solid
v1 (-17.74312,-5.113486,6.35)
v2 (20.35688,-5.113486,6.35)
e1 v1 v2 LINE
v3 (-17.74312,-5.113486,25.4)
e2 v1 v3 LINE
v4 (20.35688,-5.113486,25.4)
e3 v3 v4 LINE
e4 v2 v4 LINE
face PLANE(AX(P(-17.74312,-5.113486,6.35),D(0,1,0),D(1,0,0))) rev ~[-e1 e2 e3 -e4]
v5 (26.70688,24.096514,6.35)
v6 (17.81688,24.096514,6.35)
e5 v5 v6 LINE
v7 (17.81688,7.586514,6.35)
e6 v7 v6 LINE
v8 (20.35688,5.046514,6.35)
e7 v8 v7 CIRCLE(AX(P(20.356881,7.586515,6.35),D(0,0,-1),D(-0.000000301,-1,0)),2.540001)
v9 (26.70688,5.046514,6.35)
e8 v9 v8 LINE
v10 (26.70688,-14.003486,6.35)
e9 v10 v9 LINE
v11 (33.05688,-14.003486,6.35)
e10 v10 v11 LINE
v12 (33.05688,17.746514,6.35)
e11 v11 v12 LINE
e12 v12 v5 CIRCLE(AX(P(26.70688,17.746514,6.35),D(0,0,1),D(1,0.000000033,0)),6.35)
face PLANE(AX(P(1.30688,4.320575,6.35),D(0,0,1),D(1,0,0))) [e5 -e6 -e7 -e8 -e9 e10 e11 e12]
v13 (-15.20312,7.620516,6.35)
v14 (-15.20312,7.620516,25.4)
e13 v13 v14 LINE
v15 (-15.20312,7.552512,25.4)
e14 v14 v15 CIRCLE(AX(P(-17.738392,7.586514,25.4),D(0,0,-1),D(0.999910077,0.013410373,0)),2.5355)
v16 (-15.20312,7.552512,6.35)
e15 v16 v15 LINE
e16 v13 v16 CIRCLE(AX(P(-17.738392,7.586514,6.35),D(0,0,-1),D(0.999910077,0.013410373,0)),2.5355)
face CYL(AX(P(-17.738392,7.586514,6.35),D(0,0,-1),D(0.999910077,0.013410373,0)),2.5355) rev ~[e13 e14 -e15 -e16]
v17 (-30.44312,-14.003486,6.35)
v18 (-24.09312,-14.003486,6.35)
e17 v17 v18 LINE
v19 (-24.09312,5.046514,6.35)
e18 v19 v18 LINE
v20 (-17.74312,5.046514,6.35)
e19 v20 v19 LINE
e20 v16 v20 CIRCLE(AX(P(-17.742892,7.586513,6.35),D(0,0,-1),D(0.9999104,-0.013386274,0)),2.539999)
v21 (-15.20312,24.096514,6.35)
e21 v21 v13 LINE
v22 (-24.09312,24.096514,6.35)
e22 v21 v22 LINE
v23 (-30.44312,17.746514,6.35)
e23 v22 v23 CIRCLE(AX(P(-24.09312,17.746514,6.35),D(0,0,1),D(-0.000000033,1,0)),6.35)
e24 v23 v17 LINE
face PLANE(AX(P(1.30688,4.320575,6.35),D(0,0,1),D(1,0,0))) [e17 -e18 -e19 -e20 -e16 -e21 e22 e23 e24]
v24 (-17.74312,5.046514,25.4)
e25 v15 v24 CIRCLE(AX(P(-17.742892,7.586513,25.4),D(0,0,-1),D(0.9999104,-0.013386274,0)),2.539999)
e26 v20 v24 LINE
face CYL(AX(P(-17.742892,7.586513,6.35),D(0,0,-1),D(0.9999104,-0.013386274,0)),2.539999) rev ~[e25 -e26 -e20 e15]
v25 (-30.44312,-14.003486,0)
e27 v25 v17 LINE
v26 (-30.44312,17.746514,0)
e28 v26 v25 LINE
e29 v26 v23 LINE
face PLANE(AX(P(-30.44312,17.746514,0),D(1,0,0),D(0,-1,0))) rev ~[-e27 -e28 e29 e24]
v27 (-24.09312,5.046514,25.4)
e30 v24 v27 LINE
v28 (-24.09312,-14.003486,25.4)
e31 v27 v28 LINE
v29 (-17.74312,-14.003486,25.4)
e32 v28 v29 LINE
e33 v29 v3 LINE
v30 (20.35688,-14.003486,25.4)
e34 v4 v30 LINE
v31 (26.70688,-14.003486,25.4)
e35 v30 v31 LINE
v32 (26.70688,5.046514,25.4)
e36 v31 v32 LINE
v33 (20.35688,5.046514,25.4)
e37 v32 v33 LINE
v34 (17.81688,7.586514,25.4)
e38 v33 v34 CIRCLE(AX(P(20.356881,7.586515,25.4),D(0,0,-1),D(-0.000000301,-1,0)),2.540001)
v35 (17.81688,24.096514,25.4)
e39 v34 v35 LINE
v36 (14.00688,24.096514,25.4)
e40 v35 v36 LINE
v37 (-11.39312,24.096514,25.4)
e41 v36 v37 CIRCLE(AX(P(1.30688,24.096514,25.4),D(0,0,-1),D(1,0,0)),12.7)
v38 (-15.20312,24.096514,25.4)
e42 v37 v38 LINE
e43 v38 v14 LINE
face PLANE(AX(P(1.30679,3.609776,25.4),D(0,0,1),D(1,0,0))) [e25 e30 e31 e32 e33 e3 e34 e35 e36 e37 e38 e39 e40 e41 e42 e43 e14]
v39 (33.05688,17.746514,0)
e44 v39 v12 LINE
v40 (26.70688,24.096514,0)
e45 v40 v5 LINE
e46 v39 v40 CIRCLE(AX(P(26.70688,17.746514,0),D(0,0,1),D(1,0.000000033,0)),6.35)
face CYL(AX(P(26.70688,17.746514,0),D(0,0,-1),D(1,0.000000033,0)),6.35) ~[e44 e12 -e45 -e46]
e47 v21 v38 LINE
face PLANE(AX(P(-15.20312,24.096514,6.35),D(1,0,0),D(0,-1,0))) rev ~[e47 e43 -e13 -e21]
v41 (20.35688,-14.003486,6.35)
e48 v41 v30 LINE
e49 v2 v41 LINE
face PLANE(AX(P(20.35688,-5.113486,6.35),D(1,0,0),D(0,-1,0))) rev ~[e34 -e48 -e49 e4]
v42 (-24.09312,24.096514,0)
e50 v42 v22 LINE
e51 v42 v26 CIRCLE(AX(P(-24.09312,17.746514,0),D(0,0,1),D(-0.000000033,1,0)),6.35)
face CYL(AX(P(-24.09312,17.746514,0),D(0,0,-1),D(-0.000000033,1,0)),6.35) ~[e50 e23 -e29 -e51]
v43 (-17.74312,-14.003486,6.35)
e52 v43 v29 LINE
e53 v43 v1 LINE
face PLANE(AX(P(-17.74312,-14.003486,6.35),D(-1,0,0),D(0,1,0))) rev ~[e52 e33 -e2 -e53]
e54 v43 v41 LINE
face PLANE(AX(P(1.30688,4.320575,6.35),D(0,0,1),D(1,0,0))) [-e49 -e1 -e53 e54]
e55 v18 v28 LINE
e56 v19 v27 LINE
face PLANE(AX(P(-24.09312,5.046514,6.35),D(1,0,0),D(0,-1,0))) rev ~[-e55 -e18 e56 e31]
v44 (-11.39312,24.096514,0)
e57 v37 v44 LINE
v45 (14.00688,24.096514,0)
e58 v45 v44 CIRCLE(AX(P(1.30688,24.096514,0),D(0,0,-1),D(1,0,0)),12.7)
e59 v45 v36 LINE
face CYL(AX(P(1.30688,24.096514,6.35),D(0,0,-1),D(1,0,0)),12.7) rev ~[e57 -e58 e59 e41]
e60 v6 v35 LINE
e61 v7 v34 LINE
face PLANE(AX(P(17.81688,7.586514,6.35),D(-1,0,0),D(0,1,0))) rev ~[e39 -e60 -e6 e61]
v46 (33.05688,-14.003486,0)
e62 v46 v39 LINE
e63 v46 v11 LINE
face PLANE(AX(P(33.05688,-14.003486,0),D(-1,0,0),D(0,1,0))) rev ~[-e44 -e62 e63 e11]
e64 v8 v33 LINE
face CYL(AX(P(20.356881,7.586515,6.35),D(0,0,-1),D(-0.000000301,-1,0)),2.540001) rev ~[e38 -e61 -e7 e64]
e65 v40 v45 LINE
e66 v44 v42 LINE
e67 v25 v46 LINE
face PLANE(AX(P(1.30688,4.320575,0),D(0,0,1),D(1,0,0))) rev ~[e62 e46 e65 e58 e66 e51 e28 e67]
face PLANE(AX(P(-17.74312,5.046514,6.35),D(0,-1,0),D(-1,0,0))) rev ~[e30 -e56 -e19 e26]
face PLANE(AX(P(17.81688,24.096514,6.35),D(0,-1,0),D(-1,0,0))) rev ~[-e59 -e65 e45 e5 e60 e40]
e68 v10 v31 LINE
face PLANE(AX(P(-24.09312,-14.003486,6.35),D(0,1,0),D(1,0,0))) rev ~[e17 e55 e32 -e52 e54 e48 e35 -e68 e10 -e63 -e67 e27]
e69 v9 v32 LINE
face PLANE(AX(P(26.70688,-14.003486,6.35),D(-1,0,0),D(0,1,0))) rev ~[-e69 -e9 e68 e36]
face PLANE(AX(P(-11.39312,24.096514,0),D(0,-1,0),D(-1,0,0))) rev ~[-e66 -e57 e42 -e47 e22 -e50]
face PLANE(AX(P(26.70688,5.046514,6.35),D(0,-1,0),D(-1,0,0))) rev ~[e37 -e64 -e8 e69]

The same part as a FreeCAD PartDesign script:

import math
import FreeCAD as App
import Part
import Sketcher

V = App.Vector
Q = App.Units.Quantity

doc = App.newDocument("Part")
params = doc.addObject("Spreadsheet::Sheet", "Params")
for row, (alias, value) in enumerate([
    ("sketch1_radius", "0.5 in"),
    ("sketch1_radius2", "0.25 in"),
    ("sketch1_width", "0.5 in"),
    ("sketch1_height", "1.25 in"),
    ("pad1_length", "0.25 in"),
    ("sketch2_radius", "0.1 in"),
    ("sketch2_radius2", "0.5 in"),
    ("sketch2_width", "1.5 in"),
    ("sketch2_height", "0.75 in"),
    ("sketch2_height2", "0.35 in"),
    ("pad2_length", "0.75 in"),
], start=1):
    params.set(f"A{row}", alias)
    params.set(f"B{row}", "=" + value)
    params.setAlias(f"B{row}", alias)

body = doc.addObject("PartDesign::Body", "Body")

# Sketch on XY plane
sketch1 = body.newObject("Sketcher::SketchObject", "Sketch")
sketch1.AttachmentSupport = (doc.getObject("XY_Plane"), [""])
sketch1.MapMode = "FlatFace"
sketch1.addGeometry(Part.LineSegment(V(-11, 24, 0), V(-24, 24, 0)), False)
sketch1.addGeometry(Part.ArcOfCircle(Part.Circle(V(-24, 18, 0), V(0, 0, 1), 6), math.radians(90), math.radians(180)), False)
sketch1.addGeometry(Part.LineSegment(V(-30, 18, 0), V(-30, -14, 0)), False)
sketch1.addGeometry(Part.LineSegment(V(-30, -14, 0), V(33, -14, 0)), False)
sketch1.addGeometry(Part.LineSegment(V(33, -14, 0), V(33, 18, 0)), False)
sketch1.addGeometry(Part.ArcOfCircle(Part.Circle(V(27, 18, 0), V(0, 0, 1), 6), math.radians(0), math.radians(90)), False)
sketch1.addGeometry(Part.LineSegment(V(27, 24, 0), V(14, 24, 0)), False)
sketch1.addGeometry(Part.ArcOfCircle(Part.Circle(V(1, 24, 0), V(0, 0, 1), 13), math.radians(180), math.radians(360)), False)
sketch1.addConstraint(Sketcher.Constraint("Tangent", 0, 2, 1, 1))
sketch1.addConstraint(Sketcher.Constraint("Tangent", 1, 2, 2, 1))
sketch1.addConstraint(Sketcher.Constraint("Coincident", 2, 2, 3, 1))
sketch1.addConstraint(Sketcher.Constraint("Coincident", 3, 2, 4, 1))
sketch1.addConstraint(Sketcher.Constraint("Tangent", 4, 2, 5, 1))
sketch1.addConstraint(Sketcher.Constraint("Tangent", 5, 2, 6, 1))
sketch1.addConstraint(Sketcher.Constraint("Coincident", 6, 2, 7, 2))
sketch1.addConstraint(Sketcher.Constraint("Coincident", 7, 1, 0, 1))
sketch1.addConstraint(Sketcher.Constraint("Horizontal", 0))
sketch1.addConstraint(Sketcher.Constraint("Vertical", 2))
sketch1.addConstraint(Sketcher.Constraint("Horizontal", 3))
sketch1.addConstraint(Sketcher.Constraint("Vertical", 4))
sketch1.addConstraint(Sketcher.Constraint("Horizontal", 6))
sketch1.addConstraint(Sketcher.Constraint("Equal", 1, 5))
sketch1.addConstraint(Sketcher.Constraint("Horizontal", 1, 3, 5, 3))
sketch1.addConstraint(Sketcher.Constraint("Horizontal", 7, 3, 0, 2))
sketch1.addConstraint(Sketcher.Constraint("Equal", 0, 6))
sketch1.addConstraint(Sketcher.Constraint("Radius", 7, Q("0.5 in")))
sketch1.addConstraint(Sketcher.Constraint("Radius", 1, Q("0.25 in")))
sketch1.addConstraint(Sketcher.Constraint("DistanceX", 0, 2, 0, 1, Q("0.5 in")))
sketch1.addConstraint(Sketcher.Constraint("DistanceY", 2, 2, 2, 1, Q("1.25 in")))
sketch1.addConstraint(Sketcher.Constraint("DistanceX", 1, 3, -1, 1, Q("24.09312 mm")))
sketch1.addConstraint(Sketcher.Constraint("DistanceY", -1, 1, 1, 3, Q("17.746514 mm")))
sketch1.setExpression("Constraints[17]", "Params.sketch1_radius")
sketch1.setExpression("Constraints[18]", "Params.sketch1_radius2")
sketch1.setExpression("Constraints[19]", "Params.sketch1_width")
sketch1.setExpression("Constraints[20]", "Params.sketch1_height")
pad1 = body.newObject("PartDesign::Pad", "Pad")
pad1.Profile = sketch1
pad1.setExpression("Length", "Params.pad1_length")

# Sketch on XY plane
sketch2 = body.newObject("Sketcher::SketchObject", "Sketch001")
sketch2.AttachmentSupport = (doc.getObject("XY_Plane"), [""])
sketch2.MapMode = "FlatFace"
sketch2.AttachmentOffset = App.Placement(V(0, 0, 0.25 * 25.4), App.Rotation())
sketch2.addGeometry(Part.LineSegment(V(-24.09, 5.05, 0), V(-24.09, -14, 0)), False)
sketch2.addGeometry(Part.LineSegment(V(-24.09, -14, 0), V(-17.74, -14, 0)), False)
sketch2.addGeometry(Part.LineSegment(V(-17.74, -14, 0), V(-17.74, -5.11, 0)), False)
sketch2.addGeometry(Part.LineSegment(V(-17.74, -5.11, 0), V(20.36, -5.11, 0)), False)
sketch2.addGeometry(Part.LineSegment(V(20.36, -5.11, 0), V(20.36, -14, 0)), False)
sketch2.addGeometry(Part.LineSegment(V(20.36, -14, 0), V(26.71, -14, 0)), False)
sketch2.addGeometry(Part.LineSegment(V(26.71, -14, 0), V(26.71, 5.05, 0)), False)
sketch2.addGeometry(Part.LineSegment(V(26.71, 5.05, 0), V(20.36, 5.05, 0)), False)
sketch2.addGeometry(Part.ArcOfCircle(Part.Circle(V(20.36, 7.59, 0), V(0, 0, 1), 2.54), math.radians(-180), math.radians(-90)), False)
sketch2.addGeometry(Part.LineSegment(V(17.82, 7.59, 0), V(17.82, 24.1, 0)), False)
sketch2.addGeometry(Part.LineSegment(V(17.82, 24.1, 0), V(14.01, 24.1, 0)), False)
sketch2.addGeometry(Part.ArcOfCircle(Part.Circle(V(1.31, 24.1, 0), V(0, 0, 1), 12.7), math.radians(180), math.radians(360)), False)
sketch2.addGeometry(Part.LineSegment(V(-11.39, 24.1, 0), V(-15.2, 24.1, 0)), False)
sketch2.addGeometry(Part.LineSegment(V(-15.2, 24.1, 0), V(-15.2, 7.62, 0)), False)
sketch2.addGeometry(Part.ArcOfCircle(Part.Circle(V(-17.74, 7.59, 0), V(0, 0, 1), 2.54), math.radians(-0.77), math.radians(0.77)), False)
sketch2.addGeometry(Part.ArcOfCircle(Part.Circle(V(-17.74, 7.59, 0), V(0, 0, 1), 2.54), math.radians(-90), math.radians(-1)), False)
sketch2.addGeometry(Part.LineSegment(V(-17.74, 5.05, 0), V(-24.09, 5.05, 0)), False)
sketch2.addConstraint(Sketcher.Constraint("Coincident", 0, 2, 1, 1))
sketch2.addConstraint(Sketcher.Constraint("Coincident", 1, 2, 2, 1))
sketch2.addConstraint(Sketcher.Constraint("Coincident", 2, 2, 3, 1))
sketch2.addConstraint(Sketcher.Constraint("Coincident", 3, 2, 4, 1))
sketch2.addConstraint(Sketcher.Constraint("Coincident", 4, 2, 5, 1))
sketch2.addConstraint(Sketcher.Constraint("Coincident", 5, 2, 6, 1))
sketch2.addConstraint(Sketcher.Constraint("Coincident", 6, 2, 7, 1))
sketch2.addConstraint(Sketcher.Constraint("Tangent", 7, 2, 8, 2))
sketch2.addConstraint(Sketcher.Constraint("Tangent", 8, 1, 9, 1))
sketch2.addConstraint(Sketcher.Constraint("Coincident", 9, 2, 10, 1))
sketch2.addConstraint(Sketcher.Constraint("Coincident", 10, 2, 11, 2))
sketch2.addConstraint(Sketcher.Constraint("Coincident", 11, 1, 12, 1))
sketch2.addConstraint(Sketcher.Constraint("Coincident", 12, 2, 13, 1))
sketch2.addConstraint(Sketcher.Constraint("Coincident", 13, 2, 14, 2))
sketch2.addConstraint(Sketcher.Constraint("Coincident", 14, 1, 15, 2))
sketch2.addConstraint(Sketcher.Constraint("Coincident", 15, 1, 16, 1))
sketch2.addConstraint(Sketcher.Constraint("Coincident", 16, 2, 0, 1))
sketch2.addConstraint(Sketcher.Constraint("Vertical", 0))
sketch2.addConstraint(Sketcher.Constraint("Horizontal", 1))
sketch2.addConstraint(Sketcher.Constraint("Vertical", 2))
sketch2.addConstraint(Sketcher.Constraint("Horizontal", 3))
sketch2.addConstraint(Sketcher.Constraint("Vertical", 4))
sketch2.addConstraint(Sketcher.Constraint("Horizontal", 5))
sketch2.addConstraint(Sketcher.Constraint("Vertical", 6))
sketch2.addConstraint(Sketcher.Constraint("Horizontal", 7))
sketch2.addConstraint(Sketcher.Constraint("Vertical", 9))
sketch2.addConstraint(Sketcher.Constraint("Horizontal", 10))
sketch2.addConstraint(Sketcher.Constraint("Horizontal", 12))
sketch2.addConstraint(Sketcher.Constraint("Vertical", 13))
sketch2.addConstraint(Sketcher.Constraint("Horizontal", 16))
sketch2.addConstraint(Sketcher.Constraint("Equal", 8, 15))
sketch2.addConstraint(Sketcher.Constraint("Horizontal", 8, 3, 14, 3))
sketch2.addConstraint(Sketcher.Constraint("Horizontal", 14, 3, 15, 3))
sketch2.addConstraint(Sketcher.Constraint("Horizontal", 1, 2, 4, 2))
sketch2.addConstraint(Sketcher.Constraint("Horizontal", 11, 3, 9, 2))
sketch2.addConstraint(Sketcher.Constraint("Horizontal", 10, 2, 11, 1))
sketch2.addConstraint(Sketcher.Constraint("Vertical", 8, 3, 3, 2))
sketch2.addConstraint(Sketcher.Constraint("Vertical", 13, 2, 14, 1))
sketch2.addConstraint(Sketcher.Constraint("Vertical", 2, 2, 15, 1))
sketch2.addConstraint(Sketcher.Constraint("Equal", 1, 5))
sketch2.addConstraint(Sketcher.Constraint("Equal", 10, 12))
sketch2.addConstraint(Sketcher.Constraint("Radius", 8, Q("0.1 in")))
sketch2.addConstraint(Sketcher.Constraint("Radius", 11, Q("0.5 in")))
sketch2.addConstraint(Sketcher.Constraint("DistanceX", 3, 1, 3, 2, Q("1.5 in")))
sketch2.addConstraint(Sketcher.Constraint("DistanceX", 0, 2, 11, 3, Q("1 in")))
sketch2.addConstraint(Sketcher.Constraint("DistanceX", 11, 3, 6, 2, Q("1 in")))
sketch2.addConstraint(Sketcher.Constraint("DistanceY", 0, 2, 0, 1, Q("0.75 in")))
sketch2.addConstraint(Sketcher.Constraint("DistanceY", 2, 1, 2, 2, Q("0.35 in")))
sketch2.addConstraint(Sketcher.Constraint("DistanceY", 9, 1, 9, 2, Q("0.65 in")))
sketch2.addConstraint(Sketcher.Constraint("Radius", 14, Q("2.5355 mm")))
sketch2.addConstraint(Sketcher.Constraint("DistanceY", 14, 1, 15, 3, Q("0.034001 mm")))
sketch2.addConstraint(Sketcher.Constraint("DistanceX", -1, 1, 8, 3, Q("20.356881 mm")))
sketch2.addConstraint(Sketcher.Constraint("DistanceY", -1, 1, 8, 3, Q("7.586515 mm")))
sketch2.setExpression("Constraints[41]", "Params.sketch2_radius")
sketch2.setExpression("Constraints[42]", "Params.sketch2_radius2")
sketch2.setExpression("Constraints[43]", "Params.sketch2_width")
sketch2.setExpression("Constraints[46]", "Params.sketch2_height")
sketch2.setExpression("Constraints[47]", "Params.sketch2_height2")
pad2 = body.newObject("PartDesign::Pad", "Pad001")
pad2.Profile = sketch2
pad2.setExpression("Length", "Params.pad2_length")

doc.recompute()
